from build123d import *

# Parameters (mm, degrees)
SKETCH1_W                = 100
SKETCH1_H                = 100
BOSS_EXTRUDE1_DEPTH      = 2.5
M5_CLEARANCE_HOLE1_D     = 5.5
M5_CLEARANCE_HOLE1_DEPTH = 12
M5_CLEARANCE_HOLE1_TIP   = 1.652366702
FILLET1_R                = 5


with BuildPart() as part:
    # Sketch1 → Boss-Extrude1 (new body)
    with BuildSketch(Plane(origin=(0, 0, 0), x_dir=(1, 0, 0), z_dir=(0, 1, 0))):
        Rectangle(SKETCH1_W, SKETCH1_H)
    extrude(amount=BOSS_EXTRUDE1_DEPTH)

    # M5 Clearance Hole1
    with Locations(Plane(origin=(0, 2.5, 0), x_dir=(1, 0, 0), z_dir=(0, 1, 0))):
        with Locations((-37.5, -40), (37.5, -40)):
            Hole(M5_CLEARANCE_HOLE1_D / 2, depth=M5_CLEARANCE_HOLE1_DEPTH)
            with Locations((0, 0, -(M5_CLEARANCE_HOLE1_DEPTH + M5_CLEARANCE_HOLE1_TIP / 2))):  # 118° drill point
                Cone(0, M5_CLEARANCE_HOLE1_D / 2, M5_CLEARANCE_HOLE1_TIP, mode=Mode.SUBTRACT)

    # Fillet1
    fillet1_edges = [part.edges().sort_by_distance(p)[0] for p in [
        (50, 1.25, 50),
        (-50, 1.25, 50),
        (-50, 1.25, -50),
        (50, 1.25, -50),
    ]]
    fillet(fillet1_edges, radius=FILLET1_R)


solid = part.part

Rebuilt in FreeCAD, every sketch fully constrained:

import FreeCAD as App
import Part
import Sketcher
Q = App.Units.Quantity


def edges_at(feature, points):
    """Names of the edges that pass closest to the given points."""
    edges = feature.Shape.Edges
    near = lambda p: min(range(len(edges)), key=lambda i: edges[i].distToShape(Part.Vertex(*p))[0])
    return sorted({f"Edge{near(p) + 1}" for p in points})


def add_polygon(sketch, points):
    """Adds a closed chain of lines whose ends are joined by coincident constraints."""
    first, n = sketch.GeometryCount, len(points)
    for a, b in zip(points, points[1:] + points[:1]):
        sketch.addGeometry(Part.LineSegment(App.Vector(*a, 0), App.Vector(*b, 0)), False)
    for i in range(n):
        sketch.addConstraint(Sketcher.Constraint("Coincident", first + i, 2, first + (i + 1) % n, 1))

doc = App.newDocument("Part")
body = doc.addObject("PartDesign::Body", "Body")

sketch1 = body.newObject("Sketcher::SketchObject", "Sketch")
sketch1.AttachmentSupport = (doc.getObject("XZ_Plane"), [""])
sketch1.MapMode = "FlatFace"
add_polygon(sketch1, [(-50, -50), (-50, 50), (50, 50), (50, -50)])
sketch1.addConstraint(Sketcher.Constraint("Vertical", 0))
sketch1.addConstraint(Sketcher.Constraint("Horizontal", 1))
sketch1.addConstraint(Sketcher.Constraint("Vertical", 2))
sketch1.addConstraint(Sketcher.Constraint("Horizontal", 3))
sketch1.addConstraint(Sketcher.Constraint("Symmetric", 0, 2, 2, 2, -1, 1))
sketch1.addConstraint(Sketcher.Constraint("Equal", 3, 0))
sketch1.addConstraint(Sketcher.Constraint("DistanceX", 1, 1, 1, 2, Q("100 mm")))
pad1 = body.newObject("PartDesign::Pad", "Pad")
pad1.Profile = sketch1
pad1.Length = 2.5
pad1.Reversed = True

sketch2 = body.newObject("Sketcher::SketchObject", "Sketch001")
sketch2.AttachmentSupport = (doc.getObject("XZ_Plane"), [""])
sketch2.MapMode = "FlatFace"
sketch2.AttachmentOffset = App.Placement(App.Vector(0, 0, -2.5), App.Rotation())
sketch2.addGeometry(Part.Circle(App.Vector(-37.5, 40, 0), App.Vector(0, 0, 1), 2.8), False)
sketch2.addGeometry(Part.Circle(App.Vector(37.5, 40, 0), App.Vector(0, 0, 1), 2.8), False)
sketch2.addConstraint(Sketcher.Constraint("Equal", 0, 1))
sketch2.addConstraint(Sketcher.Constraint("Symmetric", 0, 3, 1, 3, -2))
sketch2.addConstraint(Sketcher.Constraint("Diameter", 0, Q("5.5 mm")))
sketch2.addConstraint(Sketcher.Constraint("DistanceY", -1, 1, 0, 3, Q("40 mm")))
sketch2.addConstraint(Sketcher.Constraint("DistanceX", 0, 3, 1, 3, Q("75 mm")))
doc.recompute()
hole = body.newObject("PartDesign::Hole", "Hole")
hole.Profile = sketch2
hole.ThreadType = "None"
hole.Diameter = 5.5
hole.DepthType = "Dimension"
hole.Depth = 12
hole.DrillPoint = "Angled"
hole.DrillPointAngle = 118
hole.Reversed = True
doc.recompute()

fillet = body.newObject("PartDesign::Fillet", "Fillet")
fillet.Base = (hole, edges_at(hole, [
    (50, 1.25, 50),
    (-50, 1.25, 50),
    (-50, 1.25, -50),
    (50, 1.25, -50),
]))
fillet.Radius = 5

doc.recompute()
